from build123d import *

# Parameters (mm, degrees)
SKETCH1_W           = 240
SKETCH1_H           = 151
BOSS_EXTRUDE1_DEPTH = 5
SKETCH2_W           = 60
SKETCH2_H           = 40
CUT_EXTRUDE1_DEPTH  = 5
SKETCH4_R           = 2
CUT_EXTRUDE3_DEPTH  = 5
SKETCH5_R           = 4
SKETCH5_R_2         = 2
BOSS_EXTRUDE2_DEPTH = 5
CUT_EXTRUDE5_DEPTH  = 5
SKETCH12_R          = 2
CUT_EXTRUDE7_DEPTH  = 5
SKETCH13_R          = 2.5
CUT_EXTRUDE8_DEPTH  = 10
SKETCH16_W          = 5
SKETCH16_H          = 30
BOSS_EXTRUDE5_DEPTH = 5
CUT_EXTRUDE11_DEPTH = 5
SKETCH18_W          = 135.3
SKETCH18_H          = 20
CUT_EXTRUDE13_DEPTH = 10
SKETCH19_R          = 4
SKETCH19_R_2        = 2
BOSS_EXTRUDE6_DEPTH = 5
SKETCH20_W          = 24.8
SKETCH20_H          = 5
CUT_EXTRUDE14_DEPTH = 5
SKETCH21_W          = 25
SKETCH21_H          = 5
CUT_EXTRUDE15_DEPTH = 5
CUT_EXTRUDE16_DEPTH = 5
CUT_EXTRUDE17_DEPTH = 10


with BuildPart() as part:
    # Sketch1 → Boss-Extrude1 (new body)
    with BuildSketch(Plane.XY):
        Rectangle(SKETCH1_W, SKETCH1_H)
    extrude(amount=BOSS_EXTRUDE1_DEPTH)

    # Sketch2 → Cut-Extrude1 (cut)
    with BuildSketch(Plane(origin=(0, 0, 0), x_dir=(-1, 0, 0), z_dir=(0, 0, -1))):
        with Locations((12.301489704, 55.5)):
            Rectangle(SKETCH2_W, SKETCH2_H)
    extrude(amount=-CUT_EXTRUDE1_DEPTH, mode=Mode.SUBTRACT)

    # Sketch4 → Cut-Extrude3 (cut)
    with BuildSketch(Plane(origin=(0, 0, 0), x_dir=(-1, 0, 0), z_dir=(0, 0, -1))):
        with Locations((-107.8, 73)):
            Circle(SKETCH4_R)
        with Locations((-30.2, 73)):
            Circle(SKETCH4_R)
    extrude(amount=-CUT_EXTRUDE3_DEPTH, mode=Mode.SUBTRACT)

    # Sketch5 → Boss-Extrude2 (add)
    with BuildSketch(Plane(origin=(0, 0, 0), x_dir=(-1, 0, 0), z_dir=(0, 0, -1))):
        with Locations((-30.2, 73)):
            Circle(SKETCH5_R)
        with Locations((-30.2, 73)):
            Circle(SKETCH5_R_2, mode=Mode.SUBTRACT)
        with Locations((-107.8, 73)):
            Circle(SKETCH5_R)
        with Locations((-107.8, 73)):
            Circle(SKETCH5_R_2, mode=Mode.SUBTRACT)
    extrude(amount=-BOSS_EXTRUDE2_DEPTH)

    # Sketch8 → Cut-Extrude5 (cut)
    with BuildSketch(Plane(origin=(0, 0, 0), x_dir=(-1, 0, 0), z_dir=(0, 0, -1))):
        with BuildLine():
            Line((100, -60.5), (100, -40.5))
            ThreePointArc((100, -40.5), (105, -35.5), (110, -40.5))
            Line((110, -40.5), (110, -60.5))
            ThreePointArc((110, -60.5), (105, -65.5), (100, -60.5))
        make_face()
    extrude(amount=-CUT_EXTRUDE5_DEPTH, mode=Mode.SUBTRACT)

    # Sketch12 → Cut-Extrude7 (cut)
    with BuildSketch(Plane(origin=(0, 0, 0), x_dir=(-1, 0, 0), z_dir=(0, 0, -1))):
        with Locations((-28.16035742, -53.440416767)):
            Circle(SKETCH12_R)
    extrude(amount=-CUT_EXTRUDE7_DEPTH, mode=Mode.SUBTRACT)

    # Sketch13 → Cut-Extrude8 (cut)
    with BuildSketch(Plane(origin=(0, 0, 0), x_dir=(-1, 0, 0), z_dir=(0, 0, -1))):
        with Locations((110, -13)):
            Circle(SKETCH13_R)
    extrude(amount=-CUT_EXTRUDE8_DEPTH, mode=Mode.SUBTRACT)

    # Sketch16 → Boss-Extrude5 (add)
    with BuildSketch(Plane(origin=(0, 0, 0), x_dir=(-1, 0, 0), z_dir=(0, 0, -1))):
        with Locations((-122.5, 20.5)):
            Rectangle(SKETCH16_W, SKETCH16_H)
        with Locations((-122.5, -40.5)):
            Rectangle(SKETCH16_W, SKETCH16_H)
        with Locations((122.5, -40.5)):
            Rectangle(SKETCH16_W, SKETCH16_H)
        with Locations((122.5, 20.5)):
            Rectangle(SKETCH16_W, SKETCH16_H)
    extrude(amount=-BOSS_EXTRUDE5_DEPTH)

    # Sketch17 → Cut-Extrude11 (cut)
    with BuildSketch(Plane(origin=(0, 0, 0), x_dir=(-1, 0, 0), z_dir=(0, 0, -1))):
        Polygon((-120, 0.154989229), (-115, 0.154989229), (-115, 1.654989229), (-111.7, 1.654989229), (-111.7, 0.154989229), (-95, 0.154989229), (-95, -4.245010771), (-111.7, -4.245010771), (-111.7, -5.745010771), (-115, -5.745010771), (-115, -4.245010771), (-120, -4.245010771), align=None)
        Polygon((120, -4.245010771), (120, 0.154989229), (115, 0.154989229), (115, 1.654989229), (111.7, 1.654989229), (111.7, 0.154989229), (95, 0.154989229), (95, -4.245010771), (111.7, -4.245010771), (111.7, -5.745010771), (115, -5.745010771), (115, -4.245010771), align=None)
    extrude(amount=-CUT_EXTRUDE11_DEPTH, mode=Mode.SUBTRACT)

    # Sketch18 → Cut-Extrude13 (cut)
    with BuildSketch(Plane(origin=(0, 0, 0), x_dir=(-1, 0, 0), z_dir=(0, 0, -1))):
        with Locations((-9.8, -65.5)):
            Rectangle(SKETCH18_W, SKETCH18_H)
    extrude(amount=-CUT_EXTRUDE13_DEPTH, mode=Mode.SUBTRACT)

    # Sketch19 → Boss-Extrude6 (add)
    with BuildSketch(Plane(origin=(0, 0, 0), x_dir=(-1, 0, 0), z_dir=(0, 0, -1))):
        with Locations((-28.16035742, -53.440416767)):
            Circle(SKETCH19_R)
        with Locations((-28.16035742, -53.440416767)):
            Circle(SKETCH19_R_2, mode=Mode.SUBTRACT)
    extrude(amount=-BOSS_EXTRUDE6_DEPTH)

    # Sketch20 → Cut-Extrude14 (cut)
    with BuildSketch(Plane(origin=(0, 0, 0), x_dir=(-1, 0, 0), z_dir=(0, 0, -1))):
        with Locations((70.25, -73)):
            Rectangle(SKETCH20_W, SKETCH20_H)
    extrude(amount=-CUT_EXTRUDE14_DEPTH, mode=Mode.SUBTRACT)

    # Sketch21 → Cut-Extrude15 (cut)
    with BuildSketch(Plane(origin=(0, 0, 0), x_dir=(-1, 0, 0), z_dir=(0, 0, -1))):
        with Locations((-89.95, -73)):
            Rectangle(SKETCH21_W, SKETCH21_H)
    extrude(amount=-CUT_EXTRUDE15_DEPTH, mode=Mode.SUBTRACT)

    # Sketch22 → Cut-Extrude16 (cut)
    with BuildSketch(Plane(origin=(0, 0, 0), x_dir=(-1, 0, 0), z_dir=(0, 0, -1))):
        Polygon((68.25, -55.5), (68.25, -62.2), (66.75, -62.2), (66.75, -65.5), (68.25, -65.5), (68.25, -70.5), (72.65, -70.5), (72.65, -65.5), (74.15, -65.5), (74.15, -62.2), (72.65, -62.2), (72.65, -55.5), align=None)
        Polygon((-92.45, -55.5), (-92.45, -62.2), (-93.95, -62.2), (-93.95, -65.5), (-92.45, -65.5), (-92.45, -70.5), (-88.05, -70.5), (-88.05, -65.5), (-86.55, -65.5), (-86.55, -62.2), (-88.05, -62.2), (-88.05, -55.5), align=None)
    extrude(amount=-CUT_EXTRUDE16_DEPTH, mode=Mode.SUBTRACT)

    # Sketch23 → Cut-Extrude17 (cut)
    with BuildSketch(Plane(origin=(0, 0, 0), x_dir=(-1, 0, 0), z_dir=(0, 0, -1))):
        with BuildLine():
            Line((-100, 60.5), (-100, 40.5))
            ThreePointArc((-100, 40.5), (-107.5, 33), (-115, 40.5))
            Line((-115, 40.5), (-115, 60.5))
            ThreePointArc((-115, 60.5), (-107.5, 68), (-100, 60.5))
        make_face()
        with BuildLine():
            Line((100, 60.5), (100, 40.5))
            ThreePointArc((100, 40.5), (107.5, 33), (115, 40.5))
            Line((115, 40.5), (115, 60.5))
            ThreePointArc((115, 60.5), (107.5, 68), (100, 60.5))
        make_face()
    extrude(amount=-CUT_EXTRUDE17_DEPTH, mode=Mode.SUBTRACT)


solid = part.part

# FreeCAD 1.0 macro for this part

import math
import FreeCAD as App
import Part
import Sketcher
from FreeCAD import Vector

doc = App.newDocument("Part")
body = doc.addObject("PartDesign::Body", "Body")

sketch1 = body.newObject("Sketcher::SketchObject", "Sketch")
sketch1.AttachmentSupport = (doc.getObject("XY_Plane"), [""])
sketch1.MapMode = "FlatFace"
sketch1.addGeometry([
    Part.LineSegment(Vector(-120, 76, 0), Vector(-120, -76, 0)),
    Part.LineSegment(Vector(-120, -76, 0), Vector(120, -76, 0)),
    Part.LineSegment(Vector(120, -76, 0), Vector(120, 76, 0)),
    Part.LineSegment(Vector(120, 76, 0), Vector(-120, 76, 0)),
], False)
sketch1.addConstraint([
    Sketcher.Constraint("Coincident", 0, 2, 1, 1),
    Sketcher.Constraint("Coincident", 1, 2, 2, 1),
    Sketcher.Constraint("Coincident", 2, 2, 3, 1),
    Sketcher.Constraint("Coincident", 3, 2, 0, 1),
    Sketcher.Constraint("Vertical", 0),
    Sketcher.Constraint("Horizontal", 1),
    Sketcher.Constraint("Vertical", 2),
    Sketcher.Constraint("Horizontal", 3),
    Sketcher.Constraint("Symmetric", 0, 2, 2, 2, -1, 1),
    Sketcher.Constraint("DistanceX", 1, 1, 1, 2, 240.0),
    Sketcher.Constraint("DistanceY", 0, 2, 0, 1, 151.0),
])
pad1 = body.newObject("PartDesign::Pad", "Pad")
pad1.Profile = sketch1
pad1.Length = 5

sketch2 = body.newObject("Sketcher::SketchObject", "Sketch001")
sketch2.AttachmentSupport = (doc.getObject("XY_Plane"), [""])
sketch2.MapMode = "FlatFace"
sketch2.addGeometry([
    Part.LineSegment(Vector(18, 76, 0), Vector(18, 36, 0)),
    Part.LineSegment(Vector(18, 36, 0), Vector(-42, 36, 0)),
    Part.LineSegment(Vector(-42, 36, 0), Vector(-42, 76, 0)),
    Part.LineSegment(Vector(-42, 76, 0), Vector(18, 76, 0)),
], False)
sketch2.addConstraint([
    Sketcher.Constraint("Coincident", 0, 2, 1, 1),
    Sketcher.Constraint("Coincident", 1, 2, 2, 1),
    Sketcher.Constraint("Coincident", 2, 2, 3, 1),
    Sketcher.Constraint("Coincident", 3, 2, 0, 1),
    Sketcher.Constraint("Vertical", 0),
    Sketcher.Constraint("Horizontal", 1),
    Sketcher.Constraint("Vertical", 2),
    Sketcher.Constraint("Horizontal", 3),
    Sketcher.Constraint("DistanceX", 1, 2, 1, 1, 60.0),
    Sketcher.Constraint("DistanceY", 0, 2, 0, 1, 40.0),
    Sketcher.Constraint("DistanceY", -1, 1, 0, 2, 35.5),
    Sketcher.Constraint("DistanceX", -1, 1, 0, 2, 17.69851),
])
pocket1 = body.newObject("PartDesign::Pocket", "Pocket")
pocket1.Profile = sketch2
pocket1.Length = 5
pocket1.Reversed = True

sketch3 = body.newObject("Sketcher::SketchObject", "Sketch002")
sketch3.AttachmentSupport = (doc.getObject("XY_Plane"), [""])
sketch3.MapMode = "FlatFace"
sketch3.addGeometry([
    Part.Circle(Vector(107.8, 73, 0), Vector(0, 0, 1), 2),
    Part.Circle(Vector(30.2, 73, 0), Vector(0, 0, 1), 2),
], False)
sketch3.addConstraint([
    Sketcher.Constraint("Equal", 0, 1),
    Sketcher.Constraint("Horizontal", 0, 3, 1, 3),
    Sketcher.Constraint("Diameter", 0, 4.0),
    Sketcher.Constraint("DistanceY", -1, 1, 0, 3, 73.0),
    Sketcher.Constraint("DistanceX", -1, 1, 0, 3, 107.8),
    Sketcher.Constraint("DistanceX", -1, 1, 1, 3, 30.2),
])
pocket2 = body.newObject("PartDesign::Pocket", "Pocket001")
pocket2.Profile = sketch3
pocket2.Length = 5
pocket2.Reversed = True

sketch4 = body.newObject("Sketcher::SketchObject", "Sketch003")
sketch4.AttachmentSupport = (doc.getObject("XY_Plane"), [""])
sketch4.MapMode = "FlatFace"
sketch4.addGeometry([
    Part.Circle(Vector(30.2, 73, 0), Vector(0, 0, 1), 4),
    Part.Circle(Vector(30.2, 73, 0), Vector(0, 0, 1), 2),
    Part.Circle(Vector(107.8, 73, 0), Vector(0, 0, 1), 4),
    Part.Circle(Vector(107.8, 73, 0), Vector(0, 0, 1), 2),
], False)
sketch4.addConstraint([
    Sketcher.Constraint("Coincident", 1, 3, 0, 3),
    Sketcher.Constraint("Coincident", 3, 3, 2, 3),
    Sketcher.Constraint("Equal", 0, 2),
    Sketcher.Constraint("Equal", 1, 3),
    Sketcher.Constraint("Horizontal", 1, 3, 2, 3),
    Sketcher.Constraint("Diameter", 0, 8.0),
    Sketcher.Constraint("Diameter", 1, 4.0),
    Sketcher.Constraint("DistanceY", -1, 1, 0, 3, 73.0),
    Sketcher.Constraint("DistanceX", -1, 1, 0, 3, 30.2),
    Sketcher.Constraint("DistanceX", -1, 1, 2, 3, 107.8),
])
pad2 = body.newObject("PartDesign::Pad", "Pad001")
pad2.Profile = sketch4
pad2.Length = 5

sketch5 = body.newObject("Sketcher::SketchObject", "Sketch004")
sketch5.AttachmentSupport = (doc.getObject("XY_Plane"), [""])
sketch5.MapMode = "FlatFace"
sketch5.addGeometry([
    Part.LineSegment(Vector(-100, -40, 0), Vector(-100, -60, 0)),
    Part.ArcOfCircle(Part.Circle(Vector(-105, -60, 0), Vector(0, 0, 1), 5), math.radians(180), math.radians(360)),
    Part.LineSegment(Vector(-110, -60, 0), Vector(-110, -40, 0)),
    Part.ArcOfCircle(Part.Circle(Vector(-105, -40, 0), Vector(0, 0, 1), 5), math.radians(0), math.radians(180)),
], False)
sketch5.addConstraint([
    Sketcher.Constraint("Tangent", 0, 2, 1, 2),
    Sketcher.Constraint("Tangent", 1, 1, 2, 1),
    Sketcher.Constraint("Tangent", 2, 2, 3, 2),
    Sketcher.Constraint("Tangent", 3, 1, 0, 1),
    Sketcher.Constraint("Vertical", 0),
    Sketcher.Constraint("Vertical", 2),
    Sketcher.Constraint("Radius", 1, 5.0),
    Sketcher.Constraint("DistanceY", 0, 2, 0, 1, 20.0),
    Sketcher.Constraint("DistanceX", 1, 3, -1, 1, 105.0),
    Sketcher.Constraint("DistanceY", 1, 3, -1, 1, 60.5),
])
pocket3 = body.newObject("PartDesign::Pocket", "Pocket002")
pocket3.Profile = sketch5
pocket3.Length = 5
pocket3.Reversed = True

sketch6 = body.newObject("Sketcher::SketchObject", "Sketch005")
sketch6.AttachmentSupport = (doc.getObject("XY_Plane"), [""])
sketch6.MapMode = "FlatFace"
sketch6.addGeometry(Part.Circle(Vector(28.2, -53.4, 0), Vector(0, 0, 1), 2), False)
sketch6.addConstraint([
    Sketcher.Constraint("Diameter", 0, 4.0),
    Sketcher.Constraint("DistanceX", -1, 1, 0, 3, 28.160357),
    Sketcher.Constraint("DistanceY", 0, 3, -1, 1, 53.440417),
])
pocket4 = body.newObject("PartDesign::Pocket", "Pocket003")
pocket4.Profile = sketch6
pocket4.Length = 5
pocket4.Reversed = True

sketch7 = body.newObject("Sketcher::SketchObject", "Sketch006")
sketch7.AttachmentSupport = (doc.getObject("XY_Plane"), [""])
sketch7.MapMode = "FlatFace"
sketch7.addGeometry(Part.Circle(Vector(-110, -13, 0), Vector(0, 0, 1), 2.5), False)
sketch7.addConstraint([
    Sketcher.Constraint("Diameter", 0, 5.0),
    Sketcher.Constraint("DistanceX", 0, 3, -1, 1, 110.0),
    Sketcher.Constraint("DistanceY", 0, 3, -1, 1, 13.0),
])
pocket5 = body.newObject("PartDesign::Pocket", "Pocket004")
pocket5.Profile = sketch7
pocket5.Length = 10
pocket5.Reversed = True

sketch8 = body.newObject("Sketcher::SketchObject", "Sketch007")
sketch8.AttachmentSupport = (doc.getObject("XY_Plane"), [""])
sketch8.MapMode = "FlatFace"
sketch8.addGeometry([
    Part.LineSegment(Vector(125, 36, 0), Vector(125, 6, 0)),
    Part.LineSegment(Vector(125, 6, 0), Vector(120, 6, 0)),
    Part.LineSegment(Vector(120, 6, 0), Vector(120, 36, 0)),
    Part.LineSegment(Vector(120, 36, 0), Vector(125, 36, 0)),
    Part.LineSegment(Vector(125, -26, 0), Vector(125, -56, 0)),
    Part.LineSegment(Vector(125, -56, 0), Vector(120, -56, 0)),
    Part.LineSegment(Vector(120, -56, 0), Vector(120, -26, 0)),
    Part.LineSegment(Vector(120, -26, 0), Vector(125, -26, 0)),
    Part.LineSegment(Vector(-120, -26, 0), Vector(-120, -56, 0)),
    Part.LineSegment(Vector(-120, -56, 0), Vector(-125, -56, 0)),
    Part.LineSegment(Vector(-125, -56, 0), Vector(-125, -26, 0)),
    Part.LineSegment(Vector(-125, -26, 0), Vector(-120, -26, 0)),
    Part.LineSegment(Vector(-120, 36, 0), Vector(-120, 6, 0)),
    Part.LineSegment(Vector(-120, 6, 0), Vector(-125, 6, 0)),
    Part.LineSegment(Vector(-125, 6, 0), Vector(-125, 36, 0)),
    Part.LineSegment(Vector(-125, 36, 0), Vector(-120, 36, 0)),
], False)
sketch8.addConstraint([
    Sketcher.Constraint("Coincident", 0, 2, 1, 1),
    Sketcher.Constraint("Coincident", 1, 2, 2, 1),
    Sketcher.Constraint("Coincident", 2, 2, 3, 1),
    Sketcher.Constraint("Coincident", 3, 2, 0, 1),
    Sketcher.Constraint("Coincident", 4, 2, 5, 1),
    Sketcher.Constraint("Coincident", 5, 2, 6, 1),
    Sketcher.Constraint("Coincident", 6, 2, 7, 1),
    Sketcher.Constraint("Coincident", 7, 2, 4, 1),
    Sketcher.Constraint("Coincident", 8, 2, 9, 1),
    Sketcher.Constraint("Coincident", 9, 2, 10, 1),
    Sketcher.Constraint("Coincident", 10, 2, 11, 1),
    Sketcher.Constraint("Coincident", 11, 2, 8, 1),
    Sketcher.Constraint("Coincident", 12, 2, 13, 1),
    Sketcher.Constraint("Coincident", 13, 2, 14, 1),
    Sketcher.Constraint("Coincident", 14, 2, 15, 1),
    Sketcher.Constraint("Coincident", 15, 2, 12, 1),
    Sketcher.Constraint("Vertical", 0),
    Sketcher.Constraint("Horizontal", 1),
    Sketcher.Constraint("Vertical", 2),
    Sketcher.Constraint("Horizontal", 3),
    Sketcher.Constraint("Vertical", 4),
    Sketcher.Constraint("Horizontal", 5),
    Sketcher.Constraint("Vertical", 6),
    Sketcher.Constraint("Horizontal", 7),
    Sketcher.Constraint("Vertical", 8),
    Sketcher.Constraint("Horizontal", 9),
    Sketcher.Constraint("Vertical", 10),
    Sketcher.Constraint("Horizontal", 11),
    Sketcher.Constraint("Vertical", 12),
    Sketcher.Constraint("Horizontal", 13),
    Sketcher.Constraint("Vertical", 14),
    Sketcher.Constraint("Horizontal", 15),
    Sketcher.Constraint("Symmetric", 5, 2, 8, 2, -2),
    Sketcher.Constraint("Symmetric", 7, 2, 10, 2, -2),
    Sketcher.Constraint("Symmetric", 1, 2, 12, 2, -2),
    Sketcher.Constraint("Symmetric", 3, 2, 14, 2, -2),
    Sketcher.Constraint("Vertical", 3, 2, 4, 2),
    Sketcher.Constraint("Vertical", 2, 2, 5, 2),
    Sketcher.Constraint("Equal", 2, 4),
    Sketcher.Constraint("DistanceX", 1, 2, 1, 1, 5.0),
    Sketcher.Constraint("DistanceY", 0, 2, 0, 1, 30.0),
    Sketcher.Constraint("DistanceX", -1, 1, 0, 2, 125.0),
    Sketcher.Constraint("DistanceY", 4, 2, 0, 2, 61.0),
    Sketcher.Constraint("DistanceY", -1, 1, 0, 2, 5.5),
])
pad3 = body.newObject("PartDesign::Pad", "Pad002")
pad3.Profile = sketch8
pad3.Length = 5

sketch9 = body.newObject("Sketcher::SketchObject", "Sketch008")
sketch9.AttachmentSupport = (doc.getObject("XY_Plane"), [""])
sketch9.MapMode = "FlatFace"
sketch9.addGeometry([
    Part.LineSegment(Vector(115, 0.2, 0), Vector(120, 0.2, 0)),
    Part.LineSegment(Vector(120, 0.2, 0), Vector(120, -4.2, 0)),
    Part.LineSegment(Vector(120, -4.2, 0), Vector(115, -4.2, 0)),
    Part.LineSegment(Vector(115, -4.2, 0), Vector(115, -5.7, 0)),
    Part.LineSegment(Vector(115, -5.7, 0), Vector(111.7, -5.7, 0)),
    Part.LineSegment(Vector(111.7, -5.7, 0), Vector(111.7, -4.2, 0)),
    Part.LineSegment(Vector(111.7, -4.2, 0), Vector(95, -4.2, 0)),
    Part.LineSegment(Vector(95, -4.2, 0), Vector(95, 0.2, 0)),
    Part.LineSegment(Vector(95, 0.2, 0), Vector(111.7, 0.2, 0)),
    Part.LineSegment(Vector(111.7, 0.2, 0), Vector(111.7, 1.7, 0)),
    Part.LineSegment(Vector(111.7, 1.7, 0), Vector(115, 1.7, 0)),
    Part.LineSegment(Vector(115, 1.7, 0), Vector(115, 0.2, 0)),
    Part.LineSegment(Vector(-120, -4.2, 0), Vector(-120, 0.2, 0)),
    Part.LineSegment(Vector(-120, 0.2, 0), Vector(-115, 0.2, 0)),
    Part.LineSegment(Vector(-115, 0.2, 0), Vector(-115, 1.7, 0)),
    Part.LineSegment(Vector(-115, 1.7, 0), Vector(-111.7, 1.7, 0)),
    Part.LineSegment(Vector(-111.7, 1.7, 0), Vector(-111.7, 0.2, 0)),
    Part.LineSegment(Vector(-111.7, 0.2, 0), Vector(-95, 0.2, 0)),
    Part.LineSegment(Vector(-95, 0.2, 0), Vector(-95, -4.2, 0)),
    Part.LineSegment(Vector(-95, -4.2, 0), Vector(-111.7, -4.2, 0)),
    Part.LineSegment(Vector(-111.7, -4.2, 0), Vector(-111.7, -5.7, 0)),
    Part.LineSegment(Vector(-111.7, -5.7, 0), Vector(-115, -5.7, 0)),
    Part.LineSegment(Vector(-115, -5.7, 0), Vector(-115, -4.2, 0)),
    Part.LineSegment(Vector(-115, -4.2, 0), Vector(-120, -4.2, 0)),
], False)
sketch9.addConstraint([
    Sketcher.Constraint("Coincident", 0, 2, 1, 1),
    Sketcher.Constraint("Coincident", 1, 2, 2, 1),
    Sketcher.Constraint("Coincident", 2, 2, 3, 1),
    Sketcher.Constraint("Coincident", 3, 2, 4, 1),
    Sketcher.Constraint("Coincident", 4, 2, 5, 1),
    Sketcher.Constraint("Coincident", 5, 2, 6, 1),
    Sketcher.Constraint("Coincident", 6, 2, 7, 1),
    Sketcher.Constraint("Coincident", 7, 2, 8, 1),
    Sketcher.Constraint("Coincident", 8, 2, 9, 1),
    Sketcher.Constraint("Coincident", 9, 2, 10, 1),
    Sketcher.Constraint("Coincident", 10, 2, 11, 1),
    Sketcher.Constraint("Coincident", 11, 2, 0, 1),
    Sketcher.Constraint("Coincident", 12, 2, 13, 1),
    Sketcher.Constraint("Coincident", 13, 2, 14, 1),
    Sketcher.Constraint("Coincident", 14, 2, 15, 1),
    Sketcher.Constraint("Coincident", 15, 2, 16, 1),
    Sketcher.Constraint("Coincident", 16, 2, 17, 1),
    Sketcher.Constraint("Coincident", 17, 2, 18, 1),
    Sketcher.Constraint("Coincident", 18, 2, 19, 1),
    Sketcher.Constraint("Coincident", 19, 2, 20, 1),
    Sketcher.Constraint("Coincident", 20, 2, 21, 1),
    Sketcher.Constraint("Coincident", 21, 2, 22, 1),
    Sketcher.Constraint("Coincident", 22, 2, 23, 1),
    Sketcher.Constraint("Coincident", 23, 2, 12, 1),
    Sketcher.Constraint("Horizontal", 0),
    Sketcher.Constraint("Vertical", 1),
    Sketcher.Constraint("Horizontal", 2),
    Sketcher.Constraint("Vertical", 3),
    Sketcher.Constraint("Horizontal", 4),
    Sketcher.Constraint("Vertical", 5),
    Sketcher.Constraint("Horizontal", 6),
    Sketcher.Constraint("Vertical", 7),
    Sketcher.Constraint("Horizontal", 8),
    Sketcher.Constraint("Vertical", 9),
    Sketcher.Constraint("Horizontal", 10),
    Sketcher.Constraint("Vertical", 11),
    Sketcher.Constraint("Vertical", 12),
    Sketcher.Constraint("Horizontal", 13),
    Sketcher.Constraint("Vertical", 14),
    Sketcher.Constraint("Horizontal", 15),
    Sketcher.Constraint("Vertical", 16),
    Sketcher.Constraint("Horizontal", 17),
    Sketcher.Constraint("Vertical", 18),
    Sketcher.Constraint("Horizontal", 19),
    Sketcher.Constraint("Vertical", 20),
    Sketcher.Constraint("Horizontal", 21),
    Sketcher.Constraint("Vertical", 22),
    Sketcher.Constraint("Horizontal", 23),
    Sketcher.Constraint("Symmetric", 0, 2, 12, 2, -2),
    Sketcher.Constraint("Symmetric", 10, 2, 14, 2, -2),
    Sketcher.Constraint("Symmetric", 8, 2, 16, 2, -2),
    Sketcher.Constraint("Symmetric", 6, 2, 18, 2, -2),
    Sketcher.Constraint("Symmetric", 4, 2, 20, 2, -2),
    Sketcher.Constraint("Symmetric", 2, 2, 22, 2, -2),
    Sketcher.Constraint("Horizontal", 2, 2, 5, 2),
    Sketcher.Constraint("Horizontal", 0, 2, 7, 2),
    Sketcher.Constraint("Vertical", 5, 2, 8, 2),
    Sketcher.Constraint("Vertical", 3, 2, 10, 2),
    Sketcher.Constraint("Equal", 5, 9),
    Sketcher.Constraint("DistanceX", 0, 1, 0, 2, 5.0),
    Sketcher.Constraint("DistanceX", 4, 2, 4, 1, 3.3),
    Sketcher.Constraint("DistanceX", 6, 2, 6, 1, 16.7),
    Sketcher.Constraint("DistanceY", 1, 2, 1, 1, 4.4),
    Sketcher.Constraint("DistanceY", 3, 2, 3, 1, 1.5),
    Sketcher.Constraint("DistanceX", -1, 1, 0, 2, 120.0),
    Sketcher.Constraint("DistanceY", -1, 1, 0, 2, 0.154989),
])
pocket6 = body.newObject("PartDesign::Pocket", "Pocket005")
pocket6.Profile = sketch9
pocket6.Length = 5
pocket6.Reversed = True

sketch10 = body.newObject("Sketcher::SketchObject", "Sketch009")
sketch10.AttachmentSupport = (doc.getObject("XY_Plane"), [""])
sketch10.MapMode = "FlatFace"
sketch10.addGeometry([
    Part.LineSegment(Vector(77, -56, 0), Vector(77, -76, 0)),
    Part.LineSegment(Vector(77, -76, 0), Vector(-58, -76, 0)),
    Part.LineSegment(Vector(-58, -76, 0), Vector(-58, -56, 0)),
    Part.LineSegment(Vector(-58, -56, 0), Vector(77, -56, 0)),
], False)
sketch10.addConstraint([
    Sketcher.Constraint("Coincident", 0, 2, 1, 1),
    Sketcher.Constraint("Coincident", 1, 2, 2, 1),
    Sketcher.Constraint("Coincident", 2, 2, 3, 1),
    Sketcher.Constraint("Coincident", 3, 2, 0, 1),
    Sketcher.Constraint("Vertical", 0),
    Sketcher.Constraint("Horizontal", 1),
    Sketcher.Constraint("Vertical", 2),
    Sketcher.Constraint("Horizontal", 3),
    Sketcher.Constraint("DistanceY", 0, 2, 0, 1, 20.0),
    Sketcher.Constraint("DistanceX", 1, 2, 1, 1, 135.3),
    Sketcher.Constraint("DistanceY", 0, 2, -1, 1, 75.5),
    Sketcher.Constraint("DistanceX", -1, 1, 0, 2, 77.45),
])
pocket7 = body.newObject("PartDesign::Pocket", "Pocket006")
pocket7.Profile = sketch10
pocket7.Length = 10
pocket7.Reversed = True

sketch11 = body.newObject("Sketcher::SketchObject", "Sketch010")
sketch11.AttachmentSupport = (doc.getObject("XY_Plane"), [""])
sketch11.MapMode = "FlatFace"
sketch11.addGeometry([
    Part.Circle(Vector(28.2, -53.4, 0), Vector(0, 0, 1), 4),
    Part.Circle(Vector(28.2, -53.4, 0), Vector(0, 0, 1), 2),
], False)
sketch11.addConstraint([
    Sketcher.Constraint("Coincident", 1, 3, 0, 3),
    Sketcher.Constraint("Diameter", 0, 8.0),
    Sketcher.Constraint("Diameter", 1, 4.0),
    Sketcher.Constraint("DistanceX", -1, 1, 0, 3, 28.160357),
    Sketcher.Constraint("DistanceY", 0, 3, -1, 1, 53.440417),
])
pad4 = body.newObject("PartDesign::Pad", "Pad003")
pad4.Profile = sketch11
pad4.Length = 5

sketch12 = body.newObject("Sketcher::SketchObject", "Sketch011")
sketch12.AttachmentSupport = (doc.getObject("XY_Plane"), [""])
sketch12.MapMode = "FlatFace"
sketch12.addGeometry([
    Part.LineSegment(Vector(-58, -70, 0), Vector(-58, -76, 0)),
    Part.LineSegment(Vector(-58, -76, 0), Vector(-83, -76, 0)),
    Part.LineSegment(Vector(-83, -76, 0), Vector(-83, -70, 0)),
    Part.LineSegment(Vector(-83, -70, 0), Vector(-58, -70, 0)),
], False)
sketch12.addConstraint([
    Sketcher.Constraint("Coincident", 0, 2, 1, 1),
    Sketcher.Constraint("Coincident", 1, 2, 2, 1),
    Sketcher.Constraint("Coincident", 2, 2, 3, 1),
    Sketcher.Constraint("Coincident", 3, 2, 0, 1),
    Sketcher.Constraint("Vertical", 0),
    Sketcher.Constraint("Horizontal", 1),
    Sketcher.Constraint("Vertical", 2),
    Sketcher.Constraint("Horizontal", 3),
    Sketcher.Constraint("DistanceY", 0, 2, 0, 1, 5.0),
    Sketcher.Constraint("DistanceX", 1, 2, 1, 1, 24.8),
    Sketcher.Constraint("DistanceY", 0, 2, -1, 1, 75.5),
    Sketcher.Constraint("DistanceX", 0, 2, -1, 1, 57.85),
])
pocket8 = body.newObject("PartDesign::Pocket", "Pocket007")
pocket8.Profile = sketch12
pocket8.Length = 5
pocket8.Reversed = True

sketch13 = body.newObject("Sketcher::SketchObject", "Sketch012")
sketch13.AttachmentSupport = (doc.getObject("XY_Plane"), [""])
sketch13.MapMode = "FlatFace"
sketch13.addGeometry([
    Part.LineSegment(Vector(102, -70, 0), Vector(102, -76, 0)),
    Part.LineSegment(Vector(102, -76, 0), Vector(77, -76, 0)),
    Part.LineSegment(Vector(77, -76, 0), Vector(77, -70, 0)),
    Part.LineSegment(Vector(77, -70, 0), Vector(102, -70, 0)),
], False)
sketch13.addConstraint([
    Sketcher.Constraint("Coincident", 0, 2, 1, 1),
    Sketcher.Constraint("Coincident", 1, 2, 2, 1),
    Sketcher.Constraint("Coincident", 2, 2, 3, 1),
    Sketcher.Constraint("Coincident", 3, 2, 0, 1),
    Sketcher.Constraint("Vertical", 0),
    Sketcher.Constraint("Horizontal", 1),
    Sketcher.Constraint("Vertical", 2),
    Sketcher.Constraint("Horizontal", 3),
    Sketcher.Constraint("DistanceX", 1, 2, 1, 1, 25.0),
    Sketcher.Constraint("DistanceY", 0, 2, 0, 1, 5.0),
    Sketcher.Constraint("DistanceY", 0, 2, -1, 1, 75.5),
    Sketcher.Constraint("DistanceX", -1, 1, 0, 2, 102.45),
])
pocket9 = body.newObject("PartDesign::Pocket", "Pocket008")
pocket9.Profile = sketch13
pocket9.Length = 5
pocket9.Reversed = True

sketch14 = body.newObject("Sketcher::SketchObject", "Sketch013")
sketch14.AttachmentSupport = (doc.getObject("XY_Plane"), [""])
sketch14.MapMode = "FlatFace"
sketch14.addGeometry([
    Part.LineSegment(Vector(-68.2, -55.5, 0), Vector(-68.2, -62.2, 0)),
    Part.LineSegment(Vector(-68.2, -62.2, 0), Vector(-66.8, -62.2, 0)),
    Part.LineSegment(Vector(-66.8, -62.2, 0), Vector(-66.8, -65.5, 0)),
    Part.LineSegment(Vector(-66.8, -65.5, 0), Vector(-68.2, -65.5, 0)),
    Part.LineSegment(Vector(-68.2, -65.5, 0), Vector(-68.2, -70.5, 0)),
    Part.LineSegment(Vector(-68.2, -70.5, 0), Vector(-72.7, -70.5, 0)),
    Part.LineSegment(Vector(-72.7, -70.5, 0), Vector(-72.7, -65.5, 0)),
    Part.LineSegment(Vector(-72.7, -65.5, 0), Vector(-74.2, -65.5, 0)),
    Part.LineSegment(Vector(-74.2, -65.5, 0), Vector(-74.2, -62.2, 0)),
    Part.LineSegment(Vector(-74.2, -62.2, 0), Vector(-72.7, -62.2, 0)),
    Part.LineSegment(Vector(-72.7, -62.2, 0), Vector(-72.7, -55.5, 0)),
    Part.LineSegment(Vector(-72.7, -55.5, 0), Vector(-68.2, -55.5, 0)),
    Part.LineSegment(Vector(92.5, -55.5, 0), Vector(92.5, -62.2, 0)),
    Part.LineSegment(Vector(92.5, -62.2, 0), Vector(94, -62.2, 0)),
    Part.LineSegment(Vector(94, -62.2, 0), Vector(94, -65.5, 0)),
    Part.LineSegment(Vector(94, -65.5, 0), Vector(92.5, -65.5, 0)),
    Part.LineSegment(Vector(92.5, -65.5, 0), Vector(92.5, -70.5, 0)),
    Part.LineSegment(Vector(92.5, -70.5, 0), Vector(88, -70.5, 0)),
    Part.LineSegment(Vector(88, -70.5, 0), Vector(88, -65.5, 0)),
    Part.LineSegment(Vector(88, -65.5, 0), Vector(86.5, -65.5, 0)),
    Part.LineSegment(Vector(86.5, -65.5, 0), Vector(86.5, -62.2, 0)),
    Part.LineSegment(Vector(86.5, -62.2, 0), Vector(88, -62.2, 0)),
    Part.LineSegment(Vector(88, -62.2, 0), Vector(88, -55.5, 0)),
    Part.LineSegment(Vector(88, -55.5, 0), Vector(92.5, -55.5, 0)),
], False)
sketch14.addConstraint([
    Sketcher.Constraint("Coincident", 0, 2, 1, 1),
    Sketcher.Constraint("Coincident", 1, 2, 2, 1),
    Sketcher.Constraint("Coincident", 2, 2, 3, 1),
    Sketcher.Constraint("Coincident", 3, 2, 4, 1),
    Sketcher.Constraint("Coincident", 4, 2, 5, 1),
    Sketcher.Constraint("Coincident", 5, 2, 6, 1),
    Sketcher.Constraint("Coincident", 6, 2, 7, 1),
    Sketcher.Constraint("Coincident", 7, 2, 8, 1),
    Sketcher.Constraint("Coincident", 8, 2, 9, 1),
    Sketcher.Constraint("Coincident", 9, 2, 10, 1),
    Sketcher.Constraint("Coincident", 10, 2, 11, 1),
    Sketcher.Constraint("Coincident", 11, 2, 0, 1),
    Sketcher.Constraint("Coincident", 12, 2, 13, 1),
    Sketcher.Constraint("Coincident", 13, 2, 14, 1),
    Sketcher.Constraint("Coincident", 14, 2, 15, 1),
    Sketcher.Constraint("Coincident", 15, 2, 16, 1),
    Sketcher.Constraint("Coincident", 16, 2, 17, 1),
    Sketcher.Constraint("Coincident", 17, 2, 18, 1),
    Sketcher.Constraint("Coincident", 18, 2, 19, 1),
    Sketcher.Constraint("Coincident", 19, 2, 20, 1),
    Sketcher.Constraint("Coincident", 20, 2, 21, 1),
    Sketcher.Constraint("Coincident", 21, 2, 22, 1),
    Sketcher.Constraint("Coincident", 22, 2, 23, 1),
    Sketcher.Constraint("Coincident", 23, 2, 12, 1),
    Sketcher.Constraint("Vertical", 0),
    Sketcher.Constraint("Horizontal", 1),
    Sketcher.Constraint("Vertical", 2),
    Sketcher.Constraint("Horizontal", 3),
    Sketcher.Constraint("Vertical", 4),
    Sketcher.Constraint("Horizontal", 5),
    Sketcher.Constraint("Vertical", 6),
    Sketcher.Constraint("Horizontal", 7),
    Sketcher.Constraint("Vertical", 8),
    Sketcher.Constraint("Horizontal", 9),
    Sketcher.Constraint("Vertical", 10),
    Sketcher.Constraint("Horizontal", 11),
    Sketcher.Constraint("Vertical", 12),
    Sketcher.Constraint("Horizontal", 13),
    Sketcher.Constraint("Vertical", 14),
    Sketcher.Constraint("Horizontal", 15),
    Sketcher.Constraint("Vertical", 16),
    Sketcher.Constraint("Horizontal", 17),
    Sketcher.Constraint("Vertical", 18),
    Sketcher.Constraint("Horizontal", 19),
    Sketcher.Constraint("Vertical", 20),
    Sketcher.Constraint("Horizontal", 21),
    Sketcher.Constraint("Vertical", 22),
    Sketcher.Constraint("Horizontal", 23),
    Sketcher.Constraint("Horizontal", 3, 2, 6, 2),
    Sketcher.Constraint("Horizontal", 1, 2, 8, 2),
    Sketcher.Constraint("Horizontal", 9, 2, 12, 2),
    Sketcher.Constraint("Horizontal", 7, 2, 14, 2),
    Sketcher.Constraint("Horizontal", 5, 2, 16, 2),
    Sketcher.Constraint("Horizontal", 15, 2, 18, 2),
    Sketcher.Constraint("Horizontal", 13, 2, 20, 2),
    Sketcher.Constraint("Horizontal", 11, 2, 22, 2),
    Sketcher.Constraint("Vertical", 0, 2, 3, 2),
    Sketcher.Constraint("Vertical", 6, 2, 9, 2),
    Sketcher.Constraint("Vertical", 12, 2, 15, 2),
    Sketcher.Constraint("Vertical", 18, 2, 21, 2),
    Sketcher.Constraint("Equal", 3, 7),
    Sketcher.Constraint("Equal", 9, 13),
    Sketcher.Constraint("Equal", 11, 17),
    Sketcher.Constraint("Equal", 15, 19),
    Sketcher.Constraint("DistanceY", 4, 2, 4, 1, 5.0),
    Sketcher.Constraint("DistanceX", 1, 1, 1, 2, 1.5),
    Sketcher.Constraint("DistanceX", 5, 2, 5, 1, 4.4),
    Sketcher.Constraint("DistanceY", 0, 2, 0, 1, 6.7),
    Sketcher.Constraint("DistanceY", 2, 2, 2, 1, 3.3),
    Sketcher.Constraint("DistanceY", 0, 2, -1, 1, 62.2),
    Sketcher.Constraint("DistanceX", 1, 2, 12, 2, 159.2),
    Sketcher.Constraint("DistanceX", 0, 2, -1, 1, 68.25),
])
pocket10 = body.newObject("PartDesign::Pocket", "Pocket009")
pocket10.Profile = sketch14
pocket10.Length = 5
pocket10.Reversed = True

sketch15 = body.newObject("Sketcher::SketchObject", "Sketch014")
sketch15.AttachmentSupport = (doc.getObject("XY_Plane"), [""])
sketch15.MapMode = "FlatFace"
sketch15.addGeometry([
    Part.LineSegment(Vector(100, 40, 0), Vector(100, 60, 0)),
    Part.ArcOfCircle(Part.Circle(Vector(108, 60, 0), Vector(0, 0, 1), 8), math.radians(0), math.radians(180)),
    Part.LineSegment(Vector(115, 60, 0), Vector(115, 40, 0)),
    Part.ArcOfCircle(Part.Circle(Vector(108, 40, 0), Vector(0, 0, 1), 8), math.radians(180), math.radians(360)),
    Part.LineSegment(Vector(-100, 60, 0), Vector(-100, 40, 0)),
    Part.ArcOfCircle(Part.Circle(Vector(-108, 40, 0), Vector(0, 0, 1), 8), math.radians(180), math.radians(360)),
    Part.LineSegment(Vector(-115, 40, 0), Vector(-115, 60, 0)),
    Part.ArcOfCircle(Part.Circle(Vector(-108, 60, 0), Vector(0, 0, 1), 8), math.radians(0), math.radians(180)),
], False)
sketch15.addConstraint([
    Sketcher.Constraint("Tangent", 0, 2, 1, 2),
    Sketcher.Constraint("Tangent", 1, 1, 2, 1),
    Sketcher.Constraint("Tangent", 2, 2, 3, 2),
    Sketcher.Constraint("Tangent", 3, 1, 0, 1),
    Sketcher.Constraint("Tangent", 4, 2, 5, 2),
    Sketcher.Constraint("Tangent", 5, 1, 6, 1),
    Sketcher.Constraint("Tangent", 6, 2, 7, 2),
    Sketcher.Constraint("Tangent", 7, 1, 4, 1),
    Sketcher.Constraint("Vertical", 0),
    Sketcher.Constraint("Vertical", 2),
    Sketcher.Constraint("Vertical", 4),
    Sketcher.Constraint("Vertical", 6),
    Sketcher.Constraint("Equal", 3, 5),
    Sketcher.Constraint("Symmetric", 3, 3, 5, 3, -2),
    Sketcher.Constraint("Horizontal", 1, 3, 7, 3),
    Sketcher.Constraint("Radius", 1, 7.5),
    Sketcher.Constraint("DistanceY", 0, 1, 0, 2, 20.0),
    Sketcher.Constraint("DistanceX", -1, 1, 0, 2, 100.0),
    Sketcher.Constraint("DistanceY", -1, 1, 1, 3, 60.5),
])
pocket11 = body.newObject("PartDesign::Pocket", "Pocket010")
pocket11.Profile = sketch15
pocket11.Length = 10
pocket11.Reversed = True

doc.recompute()
